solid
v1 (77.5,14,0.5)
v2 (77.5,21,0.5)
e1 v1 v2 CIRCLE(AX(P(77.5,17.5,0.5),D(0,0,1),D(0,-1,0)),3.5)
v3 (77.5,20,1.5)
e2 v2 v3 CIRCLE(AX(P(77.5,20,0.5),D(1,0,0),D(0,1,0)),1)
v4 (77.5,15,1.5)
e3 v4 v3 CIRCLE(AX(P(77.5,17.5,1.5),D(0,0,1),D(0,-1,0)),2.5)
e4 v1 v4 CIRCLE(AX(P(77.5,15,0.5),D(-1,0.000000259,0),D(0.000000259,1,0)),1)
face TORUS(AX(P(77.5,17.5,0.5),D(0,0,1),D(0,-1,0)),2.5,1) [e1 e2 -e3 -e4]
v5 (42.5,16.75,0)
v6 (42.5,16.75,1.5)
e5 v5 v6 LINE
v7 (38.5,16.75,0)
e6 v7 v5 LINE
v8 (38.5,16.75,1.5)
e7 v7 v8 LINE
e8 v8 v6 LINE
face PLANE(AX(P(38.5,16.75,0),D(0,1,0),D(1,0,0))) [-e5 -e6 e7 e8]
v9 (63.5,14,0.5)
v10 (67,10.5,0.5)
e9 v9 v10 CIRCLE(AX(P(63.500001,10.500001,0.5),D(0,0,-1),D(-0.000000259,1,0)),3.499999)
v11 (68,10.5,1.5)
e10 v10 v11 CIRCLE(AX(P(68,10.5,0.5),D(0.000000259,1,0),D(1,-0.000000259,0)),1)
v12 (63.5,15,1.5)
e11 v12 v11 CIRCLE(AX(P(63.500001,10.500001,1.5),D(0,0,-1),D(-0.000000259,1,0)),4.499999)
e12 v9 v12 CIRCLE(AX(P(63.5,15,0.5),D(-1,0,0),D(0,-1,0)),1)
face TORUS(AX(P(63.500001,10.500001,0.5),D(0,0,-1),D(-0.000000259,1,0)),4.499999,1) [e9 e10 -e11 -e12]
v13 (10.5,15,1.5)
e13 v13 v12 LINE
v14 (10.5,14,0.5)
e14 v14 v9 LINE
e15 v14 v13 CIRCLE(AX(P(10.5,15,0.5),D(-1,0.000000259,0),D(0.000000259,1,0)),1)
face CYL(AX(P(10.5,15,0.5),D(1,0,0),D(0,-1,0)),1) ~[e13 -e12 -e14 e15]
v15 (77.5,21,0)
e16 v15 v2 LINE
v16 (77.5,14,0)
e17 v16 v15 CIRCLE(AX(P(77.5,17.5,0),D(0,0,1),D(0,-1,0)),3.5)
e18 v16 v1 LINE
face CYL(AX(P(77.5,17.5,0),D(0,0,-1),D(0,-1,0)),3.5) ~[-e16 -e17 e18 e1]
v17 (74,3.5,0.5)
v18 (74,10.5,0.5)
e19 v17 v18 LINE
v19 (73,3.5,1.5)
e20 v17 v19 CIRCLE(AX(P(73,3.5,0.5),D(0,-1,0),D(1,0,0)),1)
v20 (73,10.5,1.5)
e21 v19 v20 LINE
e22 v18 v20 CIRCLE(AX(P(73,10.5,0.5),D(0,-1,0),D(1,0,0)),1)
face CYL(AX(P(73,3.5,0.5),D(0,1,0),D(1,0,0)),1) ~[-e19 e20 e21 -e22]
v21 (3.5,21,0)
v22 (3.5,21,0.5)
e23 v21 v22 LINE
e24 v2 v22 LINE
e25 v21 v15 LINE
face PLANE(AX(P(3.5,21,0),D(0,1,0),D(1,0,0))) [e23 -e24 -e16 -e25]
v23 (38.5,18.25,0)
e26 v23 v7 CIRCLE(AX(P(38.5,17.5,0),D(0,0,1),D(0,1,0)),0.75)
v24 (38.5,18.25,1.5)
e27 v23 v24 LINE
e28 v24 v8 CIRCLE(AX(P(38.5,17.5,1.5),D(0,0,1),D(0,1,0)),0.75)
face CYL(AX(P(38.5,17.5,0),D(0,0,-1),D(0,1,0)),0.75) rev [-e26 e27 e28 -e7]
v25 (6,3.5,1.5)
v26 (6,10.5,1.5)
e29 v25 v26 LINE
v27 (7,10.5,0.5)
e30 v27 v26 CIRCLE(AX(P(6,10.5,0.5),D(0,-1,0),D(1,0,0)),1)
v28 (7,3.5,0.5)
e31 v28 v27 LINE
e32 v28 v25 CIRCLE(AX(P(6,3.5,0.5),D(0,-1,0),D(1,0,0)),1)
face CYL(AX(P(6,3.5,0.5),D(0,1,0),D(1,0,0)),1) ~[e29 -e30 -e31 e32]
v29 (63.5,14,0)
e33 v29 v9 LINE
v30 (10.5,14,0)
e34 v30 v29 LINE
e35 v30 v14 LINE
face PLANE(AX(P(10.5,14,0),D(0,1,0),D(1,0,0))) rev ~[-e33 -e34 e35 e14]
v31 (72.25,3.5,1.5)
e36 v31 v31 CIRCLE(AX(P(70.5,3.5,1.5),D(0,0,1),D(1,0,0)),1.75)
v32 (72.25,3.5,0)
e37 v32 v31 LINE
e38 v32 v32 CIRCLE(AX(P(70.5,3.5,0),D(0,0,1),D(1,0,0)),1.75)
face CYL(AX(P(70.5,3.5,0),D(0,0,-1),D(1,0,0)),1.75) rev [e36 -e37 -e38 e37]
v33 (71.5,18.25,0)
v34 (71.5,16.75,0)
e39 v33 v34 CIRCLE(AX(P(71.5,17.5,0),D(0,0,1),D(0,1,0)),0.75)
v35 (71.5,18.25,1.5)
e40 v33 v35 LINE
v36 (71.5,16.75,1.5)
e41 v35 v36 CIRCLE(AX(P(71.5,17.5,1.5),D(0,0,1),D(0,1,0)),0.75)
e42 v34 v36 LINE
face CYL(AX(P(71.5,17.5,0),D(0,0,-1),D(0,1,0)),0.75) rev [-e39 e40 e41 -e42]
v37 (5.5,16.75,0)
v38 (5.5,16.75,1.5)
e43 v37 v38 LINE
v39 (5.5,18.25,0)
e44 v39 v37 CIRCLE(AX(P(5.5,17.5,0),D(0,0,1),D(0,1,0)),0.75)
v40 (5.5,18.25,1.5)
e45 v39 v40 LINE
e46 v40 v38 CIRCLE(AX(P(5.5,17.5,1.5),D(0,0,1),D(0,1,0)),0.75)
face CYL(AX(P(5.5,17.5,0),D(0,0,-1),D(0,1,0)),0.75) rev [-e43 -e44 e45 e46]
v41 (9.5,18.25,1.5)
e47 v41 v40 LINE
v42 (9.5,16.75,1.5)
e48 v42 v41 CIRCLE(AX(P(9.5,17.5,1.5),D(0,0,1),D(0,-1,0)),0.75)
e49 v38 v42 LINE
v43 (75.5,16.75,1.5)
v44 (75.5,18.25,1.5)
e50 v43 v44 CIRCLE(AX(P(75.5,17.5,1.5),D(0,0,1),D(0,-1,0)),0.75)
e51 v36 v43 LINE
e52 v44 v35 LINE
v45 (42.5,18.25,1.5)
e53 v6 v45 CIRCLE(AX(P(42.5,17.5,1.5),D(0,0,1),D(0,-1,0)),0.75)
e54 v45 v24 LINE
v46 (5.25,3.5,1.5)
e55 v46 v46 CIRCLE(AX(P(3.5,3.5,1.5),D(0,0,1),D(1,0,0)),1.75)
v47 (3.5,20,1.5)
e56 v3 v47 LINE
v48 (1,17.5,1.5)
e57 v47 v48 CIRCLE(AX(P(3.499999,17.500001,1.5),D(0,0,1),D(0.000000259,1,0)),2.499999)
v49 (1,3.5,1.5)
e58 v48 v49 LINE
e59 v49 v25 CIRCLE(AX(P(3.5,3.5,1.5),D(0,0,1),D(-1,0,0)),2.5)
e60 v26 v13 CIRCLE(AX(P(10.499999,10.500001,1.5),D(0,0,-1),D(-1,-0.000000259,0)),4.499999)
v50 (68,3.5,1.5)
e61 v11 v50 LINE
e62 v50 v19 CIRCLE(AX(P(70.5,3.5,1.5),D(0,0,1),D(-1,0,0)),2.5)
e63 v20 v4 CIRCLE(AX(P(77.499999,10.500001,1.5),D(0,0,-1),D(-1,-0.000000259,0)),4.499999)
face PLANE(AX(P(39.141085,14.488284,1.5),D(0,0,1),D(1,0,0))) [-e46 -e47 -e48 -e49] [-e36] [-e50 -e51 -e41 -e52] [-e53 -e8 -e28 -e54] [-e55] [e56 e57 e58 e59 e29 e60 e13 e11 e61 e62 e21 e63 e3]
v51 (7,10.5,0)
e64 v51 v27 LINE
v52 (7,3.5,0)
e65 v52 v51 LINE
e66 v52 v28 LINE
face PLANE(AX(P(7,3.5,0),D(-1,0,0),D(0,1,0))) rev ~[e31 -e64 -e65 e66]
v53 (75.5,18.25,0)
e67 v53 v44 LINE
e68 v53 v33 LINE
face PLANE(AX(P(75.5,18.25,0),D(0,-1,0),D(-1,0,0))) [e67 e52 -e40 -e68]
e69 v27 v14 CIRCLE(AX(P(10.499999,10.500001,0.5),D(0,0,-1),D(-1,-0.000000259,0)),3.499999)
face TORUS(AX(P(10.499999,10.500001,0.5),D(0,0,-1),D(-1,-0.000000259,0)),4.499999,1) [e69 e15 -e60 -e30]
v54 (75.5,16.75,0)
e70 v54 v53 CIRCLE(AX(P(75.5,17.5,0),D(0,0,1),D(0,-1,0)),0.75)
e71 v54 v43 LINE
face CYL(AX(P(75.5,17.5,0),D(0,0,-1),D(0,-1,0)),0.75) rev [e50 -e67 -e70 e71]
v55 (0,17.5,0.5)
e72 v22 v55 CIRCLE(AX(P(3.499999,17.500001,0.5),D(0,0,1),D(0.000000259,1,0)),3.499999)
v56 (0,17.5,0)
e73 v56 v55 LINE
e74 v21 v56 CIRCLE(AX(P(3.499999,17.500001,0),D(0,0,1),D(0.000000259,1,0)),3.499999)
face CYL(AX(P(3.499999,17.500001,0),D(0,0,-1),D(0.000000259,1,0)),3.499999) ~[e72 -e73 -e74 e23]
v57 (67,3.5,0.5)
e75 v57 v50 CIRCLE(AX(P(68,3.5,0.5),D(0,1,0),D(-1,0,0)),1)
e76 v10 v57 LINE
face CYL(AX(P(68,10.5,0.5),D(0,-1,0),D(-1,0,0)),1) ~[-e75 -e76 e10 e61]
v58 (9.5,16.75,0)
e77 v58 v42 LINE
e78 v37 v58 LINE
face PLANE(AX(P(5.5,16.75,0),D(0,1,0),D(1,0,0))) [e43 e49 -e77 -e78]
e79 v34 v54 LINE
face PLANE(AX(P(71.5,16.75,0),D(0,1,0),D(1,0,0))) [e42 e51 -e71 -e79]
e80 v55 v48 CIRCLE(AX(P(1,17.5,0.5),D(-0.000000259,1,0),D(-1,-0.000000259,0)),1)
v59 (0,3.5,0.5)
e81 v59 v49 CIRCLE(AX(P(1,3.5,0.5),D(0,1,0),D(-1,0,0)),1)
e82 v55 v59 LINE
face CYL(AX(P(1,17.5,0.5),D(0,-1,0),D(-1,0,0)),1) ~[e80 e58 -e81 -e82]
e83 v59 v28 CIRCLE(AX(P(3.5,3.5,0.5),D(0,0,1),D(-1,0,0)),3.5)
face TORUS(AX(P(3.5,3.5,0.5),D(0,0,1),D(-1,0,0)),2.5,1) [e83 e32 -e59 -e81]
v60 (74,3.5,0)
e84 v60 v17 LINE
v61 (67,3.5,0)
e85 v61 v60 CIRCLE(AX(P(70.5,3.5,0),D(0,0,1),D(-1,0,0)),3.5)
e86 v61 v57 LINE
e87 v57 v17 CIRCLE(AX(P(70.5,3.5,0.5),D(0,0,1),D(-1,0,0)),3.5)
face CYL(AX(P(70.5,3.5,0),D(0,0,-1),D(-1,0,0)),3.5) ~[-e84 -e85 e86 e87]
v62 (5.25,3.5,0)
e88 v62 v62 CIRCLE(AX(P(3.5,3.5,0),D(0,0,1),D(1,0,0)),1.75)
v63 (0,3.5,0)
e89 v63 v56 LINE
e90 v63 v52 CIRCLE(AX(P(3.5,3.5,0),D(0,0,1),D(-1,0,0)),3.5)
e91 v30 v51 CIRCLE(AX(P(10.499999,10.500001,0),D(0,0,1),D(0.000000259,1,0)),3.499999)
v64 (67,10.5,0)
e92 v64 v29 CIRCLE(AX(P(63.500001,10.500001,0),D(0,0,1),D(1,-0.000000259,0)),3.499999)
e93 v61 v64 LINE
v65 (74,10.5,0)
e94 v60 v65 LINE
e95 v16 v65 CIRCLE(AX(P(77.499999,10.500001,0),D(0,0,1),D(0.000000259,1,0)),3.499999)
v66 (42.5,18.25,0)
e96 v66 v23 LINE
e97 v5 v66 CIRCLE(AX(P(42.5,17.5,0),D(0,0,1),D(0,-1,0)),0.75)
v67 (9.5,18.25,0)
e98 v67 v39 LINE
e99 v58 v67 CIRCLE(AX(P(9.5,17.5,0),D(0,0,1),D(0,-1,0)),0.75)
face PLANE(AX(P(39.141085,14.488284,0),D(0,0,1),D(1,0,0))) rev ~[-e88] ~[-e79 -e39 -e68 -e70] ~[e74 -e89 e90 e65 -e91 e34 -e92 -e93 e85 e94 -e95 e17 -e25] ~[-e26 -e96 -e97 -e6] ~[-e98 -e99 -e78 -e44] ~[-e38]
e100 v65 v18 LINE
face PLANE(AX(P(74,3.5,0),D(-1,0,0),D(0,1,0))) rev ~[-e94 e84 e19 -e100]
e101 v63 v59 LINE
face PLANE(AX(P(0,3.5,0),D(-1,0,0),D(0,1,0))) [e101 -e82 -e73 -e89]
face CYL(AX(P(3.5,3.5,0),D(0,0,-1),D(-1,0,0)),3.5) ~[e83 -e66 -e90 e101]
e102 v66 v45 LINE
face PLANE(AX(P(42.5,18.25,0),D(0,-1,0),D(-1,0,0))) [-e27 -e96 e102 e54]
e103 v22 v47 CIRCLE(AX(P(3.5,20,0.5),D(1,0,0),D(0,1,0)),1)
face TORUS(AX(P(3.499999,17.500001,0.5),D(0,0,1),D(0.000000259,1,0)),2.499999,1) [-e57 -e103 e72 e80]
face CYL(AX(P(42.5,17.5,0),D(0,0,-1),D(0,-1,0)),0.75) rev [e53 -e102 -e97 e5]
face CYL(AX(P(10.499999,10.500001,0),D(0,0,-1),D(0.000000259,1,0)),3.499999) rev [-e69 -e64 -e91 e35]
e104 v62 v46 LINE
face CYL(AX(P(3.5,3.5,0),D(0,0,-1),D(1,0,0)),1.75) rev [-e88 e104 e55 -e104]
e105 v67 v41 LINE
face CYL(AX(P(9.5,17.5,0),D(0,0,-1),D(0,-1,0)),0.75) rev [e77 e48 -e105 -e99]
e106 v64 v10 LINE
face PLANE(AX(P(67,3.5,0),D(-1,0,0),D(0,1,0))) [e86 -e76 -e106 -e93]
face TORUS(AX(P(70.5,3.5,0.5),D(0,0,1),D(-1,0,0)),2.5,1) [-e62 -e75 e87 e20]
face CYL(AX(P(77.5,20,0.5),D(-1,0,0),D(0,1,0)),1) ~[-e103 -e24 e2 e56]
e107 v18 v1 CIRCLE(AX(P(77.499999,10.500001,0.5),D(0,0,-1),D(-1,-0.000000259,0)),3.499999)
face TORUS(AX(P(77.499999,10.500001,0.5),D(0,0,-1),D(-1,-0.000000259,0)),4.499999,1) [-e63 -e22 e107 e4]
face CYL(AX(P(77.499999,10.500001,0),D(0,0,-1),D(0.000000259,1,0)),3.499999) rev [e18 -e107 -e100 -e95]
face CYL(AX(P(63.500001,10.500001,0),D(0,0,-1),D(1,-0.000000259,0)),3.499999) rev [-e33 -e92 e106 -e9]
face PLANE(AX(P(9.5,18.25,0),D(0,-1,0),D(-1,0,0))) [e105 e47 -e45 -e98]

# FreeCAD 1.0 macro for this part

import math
import FreeCAD as App
import Part
import Sketcher

V = App.Vector


def edges_at(feature, points):
    """Names of the edges that pass closest to the given points."""
    edges = feature.Shape.Edges
    near = lambda p: min(range(len(edges)), key=lambda i: edges[i].distToShape(Part.Vertex(*p))[0])
    return sorted({f"Edge{near(p) + 1}" for p in points})

doc = App.newDocument("Part")
body = doc.addObject("PartDesign::Body", "Body")

sketch1 = body.newObject("Sketcher::SketchObject", "Sketch")
sketch1.AttachmentSupport = (doc.getObject("XY_Plane"), [""])
sketch1.MapMode = "FlatFace"
sketch1.addGeometry([
    Part.ArcOfCircle(Part.Circle(V(3.5, 3.5, 0), V(0, 0, 1), 3.5), math.radians(180), math.radians(360)),
    Part.LineSegment(V(7, 3.5, 0), V(7, 10.5, 0)),
    Part.ArcOfCircle(Part.Circle(V(10.5, 10.5, 0), V(0, 0, 1), 3.5), math.radians(90), math.radians(180)),
    Part.LineSegment(V(10.5, 14, 0), V(63.5, 14, 0)),
    Part.ArcOfCircle(Part.Circle(V(63.5, 10.5, 0), V(0, 0, 1), 3.5), math.radians(0), math.radians(90)),
    Part.LineSegment(V(67, 10.5, 0), V(67, 3.5, 0)),
    Part.ArcOfCircle(Part.Circle(V(70.5, 3.5, 0), V(0, 0, 1), 3.5), math.radians(180), math.radians(360)),
    Part.LineSegment(V(74, 3.5, 0), V(74, 10.5, 0)),
    Part.ArcOfCircle(Part.Circle(V(77.5, 10.5, 0), V(0, 0, 1), 3.5), math.radians(90), math.radians(180)),
    Part.ArcOfCircle(Part.Circle(V(77.5, 17.5, 0), V(0, 0, 1), 3.5), math.radians(-90), math.radians(90)),
    Part.LineSegment(V(77.5, 21, 0), V(3.5, 21, 0)),
    Part.ArcOfCircle(Part.Circle(V(3.5, 17.5, 0), V(0, 0, 1), 3.5), math.radians(90), math.radians(180)),
    Part.LineSegment(V(0, 17.5, 0), V(0, 3.5, 0)),
    Part.Circle(V(3.5, 3.5, 0), V(0, 0, 1), 1.8),
    Part.Circle(V(70.5, 3.5, 0), V(0, 0, 1), 1.8),
    Part.ArcOfCircle(Part.Circle(V(5.5, 17.5, 0), V(0, 0, 1), 0.8), math.radians(90), math.radians(270)),
    Part.LineSegment(V(5.5, 18.2, 0), V(9.5, 18.2, 0)),
    Part.ArcOfCircle(Part.Circle(V(9.5, 17.5, 0), V(0, 0, 1), 0.8), math.radians(-90), math.radians(90)),
    Part.LineSegment(V(9.5, 16.8, 0), V(5.5, 16.8, 0)),
    Part.ArcOfCircle(Part.Circle(V(38.5, 17.5, 0), V(0, 0, 1), 0.8), math.radians(90), math.radians(270)),
    Part.LineSegment(V(38.5, 18.2, 0), V(42.5, 18.2, 0)),
    Part.ArcOfCircle(Part.Circle(V(42.5, 17.5, 0), V(0, 0, 1), 0.8), math.radians(-90), math.radians(90)),
    Part.LineSegment(V(42.5, 16.8, 0), V(38.5, 16.8, 0)),
    Part.ArcOfCircle(Part.Circle(V(71.5, 17.5, 0), V(0, 0, 1), 0.8), math.radians(90), math.radians(270)),
    Part.LineSegment(V(71.5, 18.2, 0), V(75.5, 18.2, 0)),
    Part.ArcOfCircle(Part.Circle(V(75.5, 17.5, 0), V(0, 0, 1), 0.8), math.radians(-90), math.radians(90)),
    Part.LineSegment(V(75.5, 16.8, 0), V(71.5, 16.8, 0)),
], False)
sketch1.addConstraint([
    Sketcher.Constraint("Tangent", 0, 2, 1, 1),
    Sketcher.Constraint("Tangent", 1, 2, 2, 2),
    Sketcher.Constraint("Tangent", 2, 1, 3, 1),
    Sketcher.Constraint("Tangent", 3, 2, 4, 2),
    Sketcher.Constraint("Tangent", 4, 1, 5, 1),
    Sketcher.Constraint("Tangent", 5, 2, 6, 1),
    Sketcher.Constraint("Tangent", 6, 2, 7, 1),
    Sketcher.Constraint("Tangent", 7, 2, 8, 2),
    Sketcher.Constraint("Tangent", 8, 1, 9, 1),
    Sketcher.Constraint("Tangent", 9, 2, 10, 1),
    Sketcher.Constraint("Tangent", 10, 2, 11, 1),
    Sketcher.Constraint("Tangent", 11, 2, 12, 1),
    Sketcher.Constraint("Tangent", 12, 2, 0, 1),
    Sketcher.Constraint("Tangent", 15, 1, 16, 1),
    Sketcher.Constraint("Tangent", 16, 2, 17, 2),
    Sketcher.Constraint("Tangent", 17, 1, 18, 1),
    Sketcher.Constraint("Tangent", 18, 2, 15, 2),
    Sketcher.Constraint("Tangent", 19, 1, 20, 1),
    Sketcher.Constraint("Tangent", 20, 2, 21, 2),
    Sketcher.Constraint("Tangent", 21, 1, 22, 1),
    Sketcher.Constraint("Tangent", 22, 2, 19, 2),
    Sketcher.Constraint("Tangent", 23, 1, 24, 1),
    Sketcher.Constraint("Tangent", 24, 2, 25, 2),
    Sketcher.Constraint("Tangent", 25, 1, 26, 1),
    Sketcher.Constraint("Tangent", 26, 2, 23, 2),
    Sketcher.Constraint("Vertical", 1),
    Sketcher.Constraint("Horizontal", 3),
    Sketcher.Constraint("Vertical", 5),
    Sketcher.Constraint("Vertical", 7),
    Sketcher.Constraint("Horizontal", 10),
    Sketcher.Constraint("Vertical", 12),
    Sketcher.Constraint("Horizontal", 16),
    Sketcher.Constraint("Horizontal", 18),
    Sketcher.Constraint("Horizontal", 20),
    Sketcher.Constraint("Horizontal", 22),
    Sketcher.Constraint("Horizontal", 24),
    Sketcher.Constraint("Horizontal", 26),
    Sketcher.Constraint("Coincident", 13, 3, 0, 3),
    Sketcher.Constraint("Coincident", 14, 3, 6, 3),
    Sketcher.Constraint("Equal", 0, 2),
    Sketcher.Constraint("Equal", 2, 4),
    Sketcher.Constraint("Equal", 4, 6),
    Sketcher.Constraint("Equal", 6, 8),
    Sketcher.Constraint("Equal", 8, 9),
    Sketcher.Constraint("Equal", 9, 11),
    Sketcher.Constraint("Equal", 13, 14),
    Sketcher.Constraint("Equal", 17, 19),
    Sketcher.Constraint("Equal", 21, 23),
    Sketcher.Constraint("PointOnObject", 11, 2, -2),
    Sketcher.Constraint("Horizontal", 0, 3, 6, 3),
    Sketcher.Constraint("Horizontal", 4, 3, 8, 3),
    Sketcher.Constraint("Horizontal", 11, 3, 15, 3),
    Sketcher.Constraint("Horizontal", 17, 3, 19, 3),
    Sketcher.Constraint("Horizontal", 21, 3, 23, 3),
    Sketcher.Constraint("Vertical", 8, 3, 9, 3),
    Sketcher.Constraint("Equal", 18, 20),
    Sketcher.Constraint("Equal", 22, 24),
    Sketcher.Constraint("Diameter", 13, 3.5),
    Sketcher.Constraint("Radius", 0, 3.5),
    Sketcher.Constraint("DistanceX", 3, 1, 3, 2, 53.0),
    Sketcher.Constraint("DistanceX", 16, 1, 16, 2, 4.0),
    Sketcher.Constraint("DistanceY", 1, 1, 1, 2, 7.0),
    Sketcher.Constraint("Radius", 15, 0.75),
    Sketcher.Constraint("DistanceY", -1, 1, 2, 1, 14.0),
    Sketcher.Constraint("DistanceX", 11, 3, 15, 3, 2.000001),
    Sketcher.Constraint("DistanceX", 19, 3, 4, 3, 25.000001),
    Sketcher.Constraint("DistanceX", 23, 3, 9, 3, 6.0),
])
pad1 = body.newObject("PartDesign::Pad", "Pad")
pad1.Profile = sketch1
pad1.Length = 1.5
doc.recompute()

fillet = body.newObject("PartDesign::Fillet", "Fillet")
fillet.Base = (pad1, edges_at(pad1, [(3.5, 0, 1.5)]))
fillet.Radius = 1

doc.recompute()
